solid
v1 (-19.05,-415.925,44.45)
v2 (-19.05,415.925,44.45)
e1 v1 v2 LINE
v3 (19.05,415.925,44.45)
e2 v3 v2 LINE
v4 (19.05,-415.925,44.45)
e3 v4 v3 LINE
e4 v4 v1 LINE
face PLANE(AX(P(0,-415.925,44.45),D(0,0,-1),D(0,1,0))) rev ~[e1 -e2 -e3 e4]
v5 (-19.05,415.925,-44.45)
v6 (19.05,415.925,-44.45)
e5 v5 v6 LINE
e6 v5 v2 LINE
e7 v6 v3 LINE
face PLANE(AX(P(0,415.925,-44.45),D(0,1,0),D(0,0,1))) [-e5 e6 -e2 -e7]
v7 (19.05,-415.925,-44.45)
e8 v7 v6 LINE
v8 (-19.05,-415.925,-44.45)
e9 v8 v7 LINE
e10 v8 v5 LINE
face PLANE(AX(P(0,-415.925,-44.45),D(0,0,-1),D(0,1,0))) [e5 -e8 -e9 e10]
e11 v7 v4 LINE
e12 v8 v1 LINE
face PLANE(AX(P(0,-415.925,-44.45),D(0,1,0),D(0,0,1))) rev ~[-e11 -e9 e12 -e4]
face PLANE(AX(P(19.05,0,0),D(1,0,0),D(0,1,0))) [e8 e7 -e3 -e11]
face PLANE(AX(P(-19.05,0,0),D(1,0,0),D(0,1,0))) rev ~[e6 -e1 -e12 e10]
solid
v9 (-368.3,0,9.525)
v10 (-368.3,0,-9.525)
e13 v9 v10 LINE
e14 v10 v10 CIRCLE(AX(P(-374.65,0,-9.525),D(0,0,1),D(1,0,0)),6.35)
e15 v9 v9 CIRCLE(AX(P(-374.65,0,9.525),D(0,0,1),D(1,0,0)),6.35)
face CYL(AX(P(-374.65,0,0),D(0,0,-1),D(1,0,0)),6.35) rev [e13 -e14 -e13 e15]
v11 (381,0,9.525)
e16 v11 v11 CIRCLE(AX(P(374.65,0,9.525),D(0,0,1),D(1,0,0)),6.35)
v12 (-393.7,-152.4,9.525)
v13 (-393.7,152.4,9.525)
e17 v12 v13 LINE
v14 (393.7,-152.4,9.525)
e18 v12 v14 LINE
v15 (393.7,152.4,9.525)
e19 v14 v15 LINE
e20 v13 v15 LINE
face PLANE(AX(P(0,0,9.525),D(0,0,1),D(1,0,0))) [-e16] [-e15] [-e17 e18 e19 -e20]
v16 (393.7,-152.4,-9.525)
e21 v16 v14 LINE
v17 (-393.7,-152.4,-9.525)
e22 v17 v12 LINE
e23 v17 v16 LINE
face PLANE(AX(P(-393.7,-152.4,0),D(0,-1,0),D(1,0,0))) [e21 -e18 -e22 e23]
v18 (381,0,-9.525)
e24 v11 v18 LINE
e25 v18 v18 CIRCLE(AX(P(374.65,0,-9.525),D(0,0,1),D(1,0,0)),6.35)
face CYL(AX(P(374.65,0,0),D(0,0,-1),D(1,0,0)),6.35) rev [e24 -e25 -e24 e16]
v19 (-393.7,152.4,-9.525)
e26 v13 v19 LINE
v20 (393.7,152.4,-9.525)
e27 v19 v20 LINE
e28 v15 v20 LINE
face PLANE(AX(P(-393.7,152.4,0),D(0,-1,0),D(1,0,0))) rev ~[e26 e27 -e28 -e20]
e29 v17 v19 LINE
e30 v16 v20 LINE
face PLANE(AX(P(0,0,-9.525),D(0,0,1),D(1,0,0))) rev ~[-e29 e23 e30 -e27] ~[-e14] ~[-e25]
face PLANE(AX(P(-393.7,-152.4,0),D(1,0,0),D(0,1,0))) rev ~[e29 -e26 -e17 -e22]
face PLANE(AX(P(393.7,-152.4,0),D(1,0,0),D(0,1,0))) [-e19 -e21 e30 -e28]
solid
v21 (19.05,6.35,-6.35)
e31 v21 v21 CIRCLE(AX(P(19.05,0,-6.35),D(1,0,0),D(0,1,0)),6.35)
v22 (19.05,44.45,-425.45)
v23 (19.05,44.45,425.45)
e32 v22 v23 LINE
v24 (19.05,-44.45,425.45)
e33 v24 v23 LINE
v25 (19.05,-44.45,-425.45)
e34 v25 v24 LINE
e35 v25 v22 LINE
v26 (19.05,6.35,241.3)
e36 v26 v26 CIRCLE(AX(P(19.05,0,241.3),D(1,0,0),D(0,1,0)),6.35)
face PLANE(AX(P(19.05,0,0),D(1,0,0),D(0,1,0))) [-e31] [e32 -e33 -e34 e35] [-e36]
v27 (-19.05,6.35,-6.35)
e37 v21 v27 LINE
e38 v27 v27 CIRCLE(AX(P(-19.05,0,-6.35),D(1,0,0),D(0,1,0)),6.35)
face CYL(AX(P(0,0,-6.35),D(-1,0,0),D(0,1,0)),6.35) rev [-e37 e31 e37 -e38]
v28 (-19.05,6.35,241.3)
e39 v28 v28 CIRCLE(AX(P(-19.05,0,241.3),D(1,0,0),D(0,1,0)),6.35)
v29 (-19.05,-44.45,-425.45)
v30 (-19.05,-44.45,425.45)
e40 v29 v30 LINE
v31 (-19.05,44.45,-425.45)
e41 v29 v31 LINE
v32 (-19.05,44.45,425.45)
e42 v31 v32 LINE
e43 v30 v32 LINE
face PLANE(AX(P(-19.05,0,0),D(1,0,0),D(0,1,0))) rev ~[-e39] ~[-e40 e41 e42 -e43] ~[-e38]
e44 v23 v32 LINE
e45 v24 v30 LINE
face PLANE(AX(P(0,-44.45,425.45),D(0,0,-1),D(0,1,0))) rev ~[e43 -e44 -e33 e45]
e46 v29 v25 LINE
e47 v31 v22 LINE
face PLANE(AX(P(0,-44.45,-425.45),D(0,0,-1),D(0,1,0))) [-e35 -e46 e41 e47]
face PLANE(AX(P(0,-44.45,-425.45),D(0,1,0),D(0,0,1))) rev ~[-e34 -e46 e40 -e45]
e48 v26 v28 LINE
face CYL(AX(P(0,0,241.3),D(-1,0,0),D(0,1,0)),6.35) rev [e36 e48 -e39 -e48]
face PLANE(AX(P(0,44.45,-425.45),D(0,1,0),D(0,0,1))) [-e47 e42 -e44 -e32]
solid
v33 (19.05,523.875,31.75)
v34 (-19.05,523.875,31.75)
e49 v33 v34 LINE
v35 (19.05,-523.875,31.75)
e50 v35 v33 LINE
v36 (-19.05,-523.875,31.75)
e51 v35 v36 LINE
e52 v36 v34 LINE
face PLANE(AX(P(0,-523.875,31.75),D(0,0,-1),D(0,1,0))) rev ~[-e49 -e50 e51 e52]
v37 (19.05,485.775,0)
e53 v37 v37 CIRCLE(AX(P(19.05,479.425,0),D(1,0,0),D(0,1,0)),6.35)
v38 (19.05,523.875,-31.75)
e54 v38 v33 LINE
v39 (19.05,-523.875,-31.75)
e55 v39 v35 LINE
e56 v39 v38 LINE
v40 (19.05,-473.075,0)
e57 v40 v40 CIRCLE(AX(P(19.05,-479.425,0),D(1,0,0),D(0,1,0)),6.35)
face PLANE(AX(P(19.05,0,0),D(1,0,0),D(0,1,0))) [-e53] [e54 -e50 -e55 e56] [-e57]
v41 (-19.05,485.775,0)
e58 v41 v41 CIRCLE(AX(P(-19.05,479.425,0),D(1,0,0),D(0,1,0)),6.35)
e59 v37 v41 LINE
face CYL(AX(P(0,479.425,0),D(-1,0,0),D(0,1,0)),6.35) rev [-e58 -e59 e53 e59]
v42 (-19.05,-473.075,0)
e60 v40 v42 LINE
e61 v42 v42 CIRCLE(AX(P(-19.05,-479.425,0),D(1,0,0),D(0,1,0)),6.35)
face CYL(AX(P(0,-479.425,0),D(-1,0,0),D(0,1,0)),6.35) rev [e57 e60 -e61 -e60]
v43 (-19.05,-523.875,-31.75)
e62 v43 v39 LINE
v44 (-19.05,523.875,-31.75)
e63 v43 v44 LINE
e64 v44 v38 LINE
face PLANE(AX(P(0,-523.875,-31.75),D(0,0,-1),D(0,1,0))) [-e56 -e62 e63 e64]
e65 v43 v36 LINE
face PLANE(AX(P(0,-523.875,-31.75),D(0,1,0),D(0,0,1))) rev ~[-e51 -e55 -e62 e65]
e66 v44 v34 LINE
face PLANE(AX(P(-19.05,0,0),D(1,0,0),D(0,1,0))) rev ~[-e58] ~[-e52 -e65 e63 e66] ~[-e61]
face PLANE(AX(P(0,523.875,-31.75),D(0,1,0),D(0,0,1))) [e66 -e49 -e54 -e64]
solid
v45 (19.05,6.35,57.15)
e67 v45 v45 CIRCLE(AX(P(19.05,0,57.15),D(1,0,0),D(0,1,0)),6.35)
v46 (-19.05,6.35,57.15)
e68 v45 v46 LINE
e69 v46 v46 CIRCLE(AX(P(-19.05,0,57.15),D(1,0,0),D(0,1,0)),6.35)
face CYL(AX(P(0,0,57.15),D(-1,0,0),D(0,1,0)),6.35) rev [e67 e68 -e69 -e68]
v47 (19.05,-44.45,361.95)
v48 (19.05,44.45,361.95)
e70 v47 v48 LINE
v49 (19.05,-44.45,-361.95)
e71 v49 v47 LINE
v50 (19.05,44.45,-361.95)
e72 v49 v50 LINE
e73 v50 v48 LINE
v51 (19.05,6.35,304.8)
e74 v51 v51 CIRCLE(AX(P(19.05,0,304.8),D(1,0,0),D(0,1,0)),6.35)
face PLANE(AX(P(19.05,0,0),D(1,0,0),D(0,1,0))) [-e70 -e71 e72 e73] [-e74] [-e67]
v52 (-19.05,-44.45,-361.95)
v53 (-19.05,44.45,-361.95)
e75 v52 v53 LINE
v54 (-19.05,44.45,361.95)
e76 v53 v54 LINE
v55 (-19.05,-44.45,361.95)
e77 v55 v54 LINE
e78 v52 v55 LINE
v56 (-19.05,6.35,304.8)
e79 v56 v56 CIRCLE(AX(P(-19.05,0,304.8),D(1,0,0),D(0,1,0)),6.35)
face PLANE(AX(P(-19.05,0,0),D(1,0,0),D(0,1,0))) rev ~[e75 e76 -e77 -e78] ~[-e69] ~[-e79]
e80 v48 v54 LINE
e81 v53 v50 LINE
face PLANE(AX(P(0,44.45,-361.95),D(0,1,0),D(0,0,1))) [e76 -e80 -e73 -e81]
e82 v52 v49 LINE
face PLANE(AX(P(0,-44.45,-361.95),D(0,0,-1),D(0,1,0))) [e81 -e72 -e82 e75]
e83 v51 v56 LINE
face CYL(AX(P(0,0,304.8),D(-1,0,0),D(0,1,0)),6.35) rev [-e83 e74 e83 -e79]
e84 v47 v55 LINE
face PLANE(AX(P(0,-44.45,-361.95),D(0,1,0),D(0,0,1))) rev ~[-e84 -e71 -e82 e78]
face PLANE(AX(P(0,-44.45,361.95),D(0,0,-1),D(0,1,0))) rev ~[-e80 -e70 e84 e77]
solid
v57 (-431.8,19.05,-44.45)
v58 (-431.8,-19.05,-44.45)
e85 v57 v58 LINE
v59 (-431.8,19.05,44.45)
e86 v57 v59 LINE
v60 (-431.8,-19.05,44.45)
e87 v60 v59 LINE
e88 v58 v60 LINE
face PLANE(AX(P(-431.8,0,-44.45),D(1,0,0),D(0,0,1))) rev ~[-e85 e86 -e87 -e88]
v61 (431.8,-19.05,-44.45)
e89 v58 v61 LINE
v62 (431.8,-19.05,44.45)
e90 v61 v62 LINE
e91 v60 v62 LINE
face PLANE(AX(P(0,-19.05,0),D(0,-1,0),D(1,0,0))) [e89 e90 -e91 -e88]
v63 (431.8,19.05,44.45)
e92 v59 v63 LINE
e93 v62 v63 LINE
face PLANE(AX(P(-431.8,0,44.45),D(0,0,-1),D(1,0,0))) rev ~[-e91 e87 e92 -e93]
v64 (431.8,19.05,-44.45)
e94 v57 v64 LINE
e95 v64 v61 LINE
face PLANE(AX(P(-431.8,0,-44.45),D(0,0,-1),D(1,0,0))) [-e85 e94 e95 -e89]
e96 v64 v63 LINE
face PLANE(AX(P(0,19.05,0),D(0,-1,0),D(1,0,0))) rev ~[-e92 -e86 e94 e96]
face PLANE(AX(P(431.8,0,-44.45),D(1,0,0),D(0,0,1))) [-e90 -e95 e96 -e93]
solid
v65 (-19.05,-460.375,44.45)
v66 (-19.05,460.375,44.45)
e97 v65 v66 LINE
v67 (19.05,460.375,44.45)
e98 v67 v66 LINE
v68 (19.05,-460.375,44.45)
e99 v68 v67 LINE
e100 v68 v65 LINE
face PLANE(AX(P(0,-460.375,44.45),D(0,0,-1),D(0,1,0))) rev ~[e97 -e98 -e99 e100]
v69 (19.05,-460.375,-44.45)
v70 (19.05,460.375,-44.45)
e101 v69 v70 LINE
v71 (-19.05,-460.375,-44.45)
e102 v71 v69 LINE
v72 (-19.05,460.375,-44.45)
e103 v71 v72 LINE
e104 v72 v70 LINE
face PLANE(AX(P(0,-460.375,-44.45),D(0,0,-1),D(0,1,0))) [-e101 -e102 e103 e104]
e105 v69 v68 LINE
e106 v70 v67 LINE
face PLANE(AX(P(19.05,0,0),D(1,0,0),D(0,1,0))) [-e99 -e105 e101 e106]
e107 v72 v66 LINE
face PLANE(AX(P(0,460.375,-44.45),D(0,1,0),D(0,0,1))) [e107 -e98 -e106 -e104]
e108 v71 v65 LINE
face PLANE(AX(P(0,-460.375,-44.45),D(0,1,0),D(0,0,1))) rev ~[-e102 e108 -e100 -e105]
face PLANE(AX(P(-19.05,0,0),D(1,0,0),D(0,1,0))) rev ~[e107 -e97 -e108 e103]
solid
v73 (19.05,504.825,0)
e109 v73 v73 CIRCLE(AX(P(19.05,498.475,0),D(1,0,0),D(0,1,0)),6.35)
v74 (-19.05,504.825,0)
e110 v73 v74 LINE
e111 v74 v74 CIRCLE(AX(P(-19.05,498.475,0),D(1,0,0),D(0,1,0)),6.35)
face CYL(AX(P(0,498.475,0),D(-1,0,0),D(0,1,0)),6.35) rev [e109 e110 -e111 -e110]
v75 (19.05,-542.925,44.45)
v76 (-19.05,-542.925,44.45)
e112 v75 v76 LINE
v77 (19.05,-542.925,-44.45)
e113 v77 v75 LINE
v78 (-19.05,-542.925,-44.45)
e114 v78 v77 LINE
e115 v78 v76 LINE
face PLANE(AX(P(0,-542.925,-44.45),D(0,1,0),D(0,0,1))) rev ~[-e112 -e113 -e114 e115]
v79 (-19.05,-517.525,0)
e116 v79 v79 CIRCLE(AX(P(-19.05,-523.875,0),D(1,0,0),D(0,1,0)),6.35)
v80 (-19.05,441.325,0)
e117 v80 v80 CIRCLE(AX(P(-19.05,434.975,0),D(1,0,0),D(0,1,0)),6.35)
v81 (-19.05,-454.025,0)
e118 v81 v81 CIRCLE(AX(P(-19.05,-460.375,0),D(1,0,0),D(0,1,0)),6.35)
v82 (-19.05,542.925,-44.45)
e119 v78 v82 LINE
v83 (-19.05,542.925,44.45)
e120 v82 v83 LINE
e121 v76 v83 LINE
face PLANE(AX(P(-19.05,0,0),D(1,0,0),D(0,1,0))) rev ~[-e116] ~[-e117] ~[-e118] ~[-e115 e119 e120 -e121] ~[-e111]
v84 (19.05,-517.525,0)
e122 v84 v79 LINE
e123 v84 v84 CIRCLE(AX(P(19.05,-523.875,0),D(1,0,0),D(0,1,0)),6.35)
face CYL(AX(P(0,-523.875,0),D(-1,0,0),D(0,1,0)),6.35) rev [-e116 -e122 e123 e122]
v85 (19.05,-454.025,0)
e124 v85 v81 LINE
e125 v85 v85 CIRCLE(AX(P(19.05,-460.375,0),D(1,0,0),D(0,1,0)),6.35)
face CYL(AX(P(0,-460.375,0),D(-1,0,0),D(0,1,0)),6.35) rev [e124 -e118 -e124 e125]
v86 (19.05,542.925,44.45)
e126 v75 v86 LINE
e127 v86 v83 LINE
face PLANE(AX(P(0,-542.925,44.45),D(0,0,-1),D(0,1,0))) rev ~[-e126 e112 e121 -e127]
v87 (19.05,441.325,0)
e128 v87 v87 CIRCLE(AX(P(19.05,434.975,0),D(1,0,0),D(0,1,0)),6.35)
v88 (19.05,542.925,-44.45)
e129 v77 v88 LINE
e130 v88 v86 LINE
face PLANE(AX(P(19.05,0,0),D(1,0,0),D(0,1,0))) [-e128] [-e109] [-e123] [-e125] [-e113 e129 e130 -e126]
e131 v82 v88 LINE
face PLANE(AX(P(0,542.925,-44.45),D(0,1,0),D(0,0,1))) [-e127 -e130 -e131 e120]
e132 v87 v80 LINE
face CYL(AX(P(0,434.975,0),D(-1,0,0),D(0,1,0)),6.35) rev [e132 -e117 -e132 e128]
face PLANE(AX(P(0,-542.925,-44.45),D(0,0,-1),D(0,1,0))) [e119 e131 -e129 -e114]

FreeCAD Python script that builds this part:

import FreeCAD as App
import Part
import Sketcher

V = App.Vector
Q = App.Units.Quantity


def add_polygon(sketch, points):
    """Adds a closed chain of lines whose ends are joined by coincident constraints."""
    first, n = sketch.GeometryCount, len(points)
    for a, b in zip(points, points[1:] + points[:1]):
        sketch.addGeometry(Part.LineSegment(App.Vector(*a, 0), App.Vector(*b, 0)), False)
    for i in range(n):
        sketch.addConstraint(Sketcher.Constraint("Coincident", first + i, 2, first + (i + 1) % n, 1))

doc = App.newDocument("Part")
body = doc.addObject("PartDesign::Body", "Body")

# Sketch on XZ plane
sketch1 = body.newObject("Sketcher::SketchObject", "Sketch")
sketch1.AttachmentSupport = (doc.getObject("XZ_Plane"), [""])
sketch1.MapMode = "FlatFace"
add_polygon(sketch1, [(-432, 44), (-432, -44), (432, -44), (432, 44)])  # lines 0-3
sketch1.addConstraint([
    Sketcher.Constraint("Vertical", 0),
    Sketcher.Constraint("Horizontal", 1),
    Sketcher.Constraint("Vertical", 2),
    Sketcher.Constraint("Horizontal", 3),
    Sketcher.Constraint("Symmetric", 0, 2, 2, 2, -1, 1),
    Sketcher.Constraint("DistanceX", 1, 1, 1, 2, Q("34 in")),
    Sketcher.Constraint("DistanceY", 0, 2, 0, 1, Q("3.5 in")),
])
pad1 = body.newObject("PartDesign::Pad", "Pad")
pad1.Profile = sketch1
pad1.Length = Q("1.5 in")
pad1.Midplane = True
body2 = doc.addObject("PartDesign::Body", "Body001")

# Sketch on YZ plane
sketch2 = body2.newObject("Sketcher::SketchObject", "Sketch001")
sketch2.AttachmentSupport = (doc.getObject("YZ_Plane001"), [""])
sketch2.MapMode = "FlatFace"
add_polygon(sketch2, [(-543, 44), (-543, -44), (543, -44), (543, 44)])  # lines 0-3
sketch2.addGeometry(Part.Circle(V(-524, 0, 0), V(0, 0, 1), 6), False)  # 4
sketch2.addGeometry(Part.Circle(V(-460, 0, 0), V(0, 0, 1), 6), False)  # 5
sketch2.addGeometry(Part.Circle(V(435, 0, 0), V(0, 0, 1), 6), False)  # 6
sketch2.addGeometry(Part.Circle(V(498, 0, 0), V(0, 0, 1), 6), False)  # 7
sketch2.addConstraint([
    Sketcher.Constraint("Vertical", 0),
    Sketcher.Constraint("Horizontal", 1),
    Sketcher.Constraint("Vertical", 2),
    Sketcher.Constraint("Horizontal", 3),
    Sketcher.Constraint("Equal", 4, 5),
    Sketcher.Constraint("Equal", 5, 6),
    Sketcher.Constraint("Equal", 6, 7),
    Sketcher.Constraint("Symmetric", 0, 2, 2, 2, -1, 1),
    Sketcher.Constraint("PointOnObject", 4, 3, -1),
    Sketcher.Constraint("PointOnObject", 5, 3, -1),
    Sketcher.Constraint("PointOnObject", 6, 3, -1),
    Sketcher.Constraint("PointOnObject", 7, 3, -1),
    Sketcher.Constraint("Diameter", 4, Q("0.5 in")),
    Sketcher.Constraint("DistanceY", 0, 2, 0, 1, Q("3.5 in")),
    Sketcher.Constraint("DistanceX", 0, 2, 7, 3, Q("41 in")),
    Sketcher.Constraint("DistanceX", 4, 3, 1, 2, Q("42 in")),
    Sketcher.Constraint("DistanceX", 1, 1, 1, 2, Q("42.75 in")),
    Sketcher.Constraint("DistanceX", 4, 3, 5, 3, Q("2.5 in")),
    Sketcher.Constraint("DistanceX", 6, 3, 7, 3, Q("2.5 in")),
])
pad2 = body2.newObject("PartDesign::Pad", "Pad001")
pad2.Profile = sketch2
pad2.Length = Q("1.5 in")
pad2.Midplane = True
body3 = doc.addObject("PartDesign::Body", "Body002")

# Sketch on YZ plane
sketch3 = body3.newObject("Sketcher::SketchObject", "Sketch002")
sketch3.AttachmentSupport = (doc.getObject("YZ_Plane002"), [""])
sketch3.MapMode = "FlatFace"
add_polygon(sketch3, [(-44, 362), (-44, -362), (44, -362), (44, 362)])  # lines 0-3
sketch3.addGeometry(Part.Circle(V(0, 57, 0), V(0, 0, 1), 6), False)  # 4
sketch3.addGeometry(Part.Circle(V(0, 305, 0), V(0, 0, 1), 6), False)  # 5
sketch3.addConstraint([
    Sketcher.Constraint("Vertical", 0),
    Sketcher.Constraint("Horizontal", 1),
    Sketcher.Constraint("Vertical", 2),
    Sketcher.Constraint("Horizontal", 3),
    Sketcher.Constraint("Equal", 4, 5),
    Sketcher.Constraint("Symmetric", 0, 2, 2, 2, -1, 1),
    Sketcher.Constraint("PointOnObject", 4, 3, -2),
    Sketcher.Constraint("PointOnObject", 5, 3, -2),
    Sketcher.Constraint("Diameter", 4, Q("0.5 in")),
    Sketcher.Constraint("DistanceX", 1, 1, 1, 2, Q("3.5 in")),
    Sketcher.Constraint("DistanceY", 0, 2, 0, 1, Q("28.5 in")),
    Sketcher.Constraint("DistanceY", -1, 1, 5, 3, Q("12 in")),
    Sketcher.Constraint("DistanceY", 4, 3, 2, 2, Q("12 in")),
])
pad3 = body3.newObject("PartDesign::Pad", "Pad002")
pad3.Profile = sketch3
pad3.Length = Q("1.5 in")
pad3.Midplane = True
body4 = doc.addObject("PartDesign::Body", "Body003")

# Sketch on YZ plane
sketch4 = body4.newObject("Sketcher::SketchObject", "Sketch003")
sketch4.AttachmentSupport = (doc.getObject("YZ_Plane003"), [""])
sketch4.MapMode = "FlatFace"
add_polygon(sketch4, [(-44, 425), (-44, -425), (44, -425), (44, 425)])  # lines 0-3
sketch4.addGeometry(Part.Circle(V(0, -6, 0), V(0, 0, 1), 6), False)  # 4
sketch4.addGeometry(Part.Circle(V(0, 241, 0), V(0, 0, 1), 6), False)  # 5
sketch4.addConstraint([
    Sketcher.Constraint("Vertical", 0),
    Sketcher.Constraint("Horizontal", 1),
    Sketcher.Constraint("Vertical", 2),
    Sketcher.Constraint("Horizontal", 3),
    Sketcher.Constraint("Equal", 4, 5),
    Sketcher.Constraint("Symmetric", 0, 2, 2, 2, -1, 1),
    Sketcher.Constraint("PointOnObject", 4, 3, -2),
    Sketcher.Constraint("PointOnObject", 5, 3, -2),
    Sketcher.Constraint("Diameter", 4, Q("0.5 in")),
    Sketcher.Constraint("DistanceX", 1, 1, 1, 2, Q("3.5 in")),
    Sketcher.Constraint("DistanceY", 0, 2, 0, 1, Q("33.5 in")),
    Sketcher.Constraint("DistanceY", 4, 3, 2, 2, Q("17 in")),
    Sketcher.Constraint("DistanceY", -1, 1, 5, 3, Q("9.5 in")),
])
pad4 = body4.newObject("PartDesign::Pad", "Pad003")
pad4.Profile = sketch4
pad4.Length = Q("1.5 in")
pad4.Midplane = True
body5 = doc.addObject("PartDesign::Body", "Body004")

# Sketch on XY plane
sketch5 = body5.newObject("Sketcher::SketchObject", "Sketch004")
sketch5.AttachmentSupport = (doc.getObject("XY_Plane004"), [""])
sketch5.MapMode = "FlatFace"
add_polygon(sketch5, [(-394, 152), (-394, -152), (394, -152), (394, 152)])  # lines 0-3
sketch5.addGeometry(Part.Circle(V(-375, 0, 0), V(0, 0, 1), 6), False)  # 4
sketch5.addGeometry(Part.Circle(V(375, 0, 0), V(0, 0, 1), 6), False)  # 5
sketch5.addConstraint([
    Sketcher.Constraint("Vertical", 0),
    Sketcher.Constraint("Horizontal", 1),
    Sketcher.Constraint("Vertical", 2),
    Sketcher.Constraint("Horizontal", 3),
    Sketcher.Constraint("Equal", 4, 5),
    Sketcher.Constraint("Symmetric", 4, 3, 5, 3, -1, 1),
    Sketcher.Constraint("Symmetric", 0, 2, 2, 2, -1, 1),
    Sketcher.Constraint("PointOnObject", 4, 3, -1),
    Sketcher.Constraint("Diameter", 4, Q("0.5 in")),
    Sketcher.Constraint("DistanceX", 1, 1, 1, 2, Q("31 in")),
    Sketcher.Constraint("DistanceY", 0, 2, 0, 1, Q("12 in")),
    Sketcher.Constraint("DistanceX", 4, 3, 5, 3, Q("29.5 in")),
])
pad5 = body5.newObject("PartDesign::Pad", "Pad004")
pad5.Profile = sketch5
pad5.Length = Q("0.75 in")
pad5.Midplane = True
body6 = doc.addObject("PartDesign::Body", "Body005")

# Sketch on YZ plane
sketch6 = body6.newObject("Sketcher::SketchObject", "Sketch005")
sketch6.AttachmentSupport = (doc.getObject("YZ_Plane005"), [""])
sketch6.MapMode = "FlatFace"
add_polygon(sketch6, [(-524, 32), (-524, -32), (524, -32), (524, 32)])  # lines 0-3
sketch6.addGeometry(Part.Circle(V(-479, 0, 0), V(0, 0, 1), 6), False)  # 4
sketch6.addGeometry(Part.Circle(V(479, 0, 0), V(0, 0, 1), 6), False)  # 5
sketch6.addConstraint([
    Sketcher.Constraint("Vertical", 0),
    Sketcher.Constraint("Horizontal", 1),
    Sketcher.Constraint("Vertical", 2),
    Sketcher.Constraint("Horizontal", 3),
    Sketcher.Constraint("Equal", 4, 5),
    Sketcher.Constraint("Symmetric", 4, 3, 5, 3, -1, 1),
    Sketcher.Constraint("Symmetric", 0, 2, 2, 2, -1, 1),
    Sketcher.Constraint("PointOnObject", 4, 3, -1),
    Sketcher.Constraint("Diameter", 4, Q("0.5 in")),
    Sketcher.Constraint("DistanceY", 0, 2, 0, 1, Q("2.5 in")),
    Sketcher.Constraint("DistanceX", 1, 1, 1, 2, Q("41.25 in")),
    Sketcher.Constraint("DistanceX", 0, 2, 5, 3, Q("39.5 in")),
])
pad6 = body6.newObject("PartDesign::Pad", "Pad005")
pad6.Profile = sketch6
pad6.Length = Q("1.5 in")
pad6.Midplane = True
body7 = doc.addObject("PartDesign::Body", "Body006")

# Sketch on YZ plane
sketch7 = body7.newObject("Sketcher::SketchObject", "Sketch006")
sketch7.AttachmentSupport = (doc.getObject("YZ_Plane006"), [""])
sketch7.MapMode = "FlatFace"
add_polygon(sketch7, [(-460, 44), (-460, -44), (460, -44), (460, 44)])  # lines 0-3
sketch7.addConstraint([
    Sketcher.Constraint("Vertical", 0),
    Sketcher.Constraint("Horizontal", 1),
    Sketcher.Constraint("Vertical", 2),
    Sketcher.Constraint("Horizontal", 3),
    Sketcher.Constraint("Symmetric", 0, 2, 2, 2, -1, 1),
    Sketcher.Constraint("DistanceY", 0, 2, 0, 1, Q("3.5 in")),
    Sketcher.Constraint("DistanceX", 1, 1, 1, 2, Q("36.25 in")),
])
pad7 = body7.newObject("PartDesign::Pad", "Pad006")
pad7.Profile = sketch7
pad7.Length = Q("1.5 in")
pad7.Midplane = True
body8 = doc.addObject("PartDesign::Body", "Body007")

# Sketch on YZ plane
sketch8 = body8.newObject("Sketcher::SketchObject", "Sketch007")
sketch8.AttachmentSupport = (doc.getObject("YZ_Plane007"), [""])
sketch8.MapMode = "FlatFace"
add_polygon(sketch8, [(-416, 44), (-416, -44), (416, -44), (416, 44)])  # lines 0-3
sketch8.addConstraint([
    Sketcher.Constraint("Vertical", 0),
    Sketcher.Constraint("Horizontal", 1),
    Sketcher.Constraint("Vertical", 2),
    Sketcher.Constraint("Horizontal", 3),
    Sketcher.Constraint("Symmetric", 0, 2, 2, 2, -1, 1),
    Sketcher.Constraint("DistanceY", 0, 2, 0, 1, Q("3.5 in")),
    Sketcher.Constraint("DistanceX", 1, 1, 1, 2, Q("32.75 in")),
])
pad8 = body8.newObject("PartDesign::Pad", "Pad007")
pad8.Profile = sketch8
pad8.Length = Q("1.5 in")
pad8.Midplane = True

doc.recompute()
